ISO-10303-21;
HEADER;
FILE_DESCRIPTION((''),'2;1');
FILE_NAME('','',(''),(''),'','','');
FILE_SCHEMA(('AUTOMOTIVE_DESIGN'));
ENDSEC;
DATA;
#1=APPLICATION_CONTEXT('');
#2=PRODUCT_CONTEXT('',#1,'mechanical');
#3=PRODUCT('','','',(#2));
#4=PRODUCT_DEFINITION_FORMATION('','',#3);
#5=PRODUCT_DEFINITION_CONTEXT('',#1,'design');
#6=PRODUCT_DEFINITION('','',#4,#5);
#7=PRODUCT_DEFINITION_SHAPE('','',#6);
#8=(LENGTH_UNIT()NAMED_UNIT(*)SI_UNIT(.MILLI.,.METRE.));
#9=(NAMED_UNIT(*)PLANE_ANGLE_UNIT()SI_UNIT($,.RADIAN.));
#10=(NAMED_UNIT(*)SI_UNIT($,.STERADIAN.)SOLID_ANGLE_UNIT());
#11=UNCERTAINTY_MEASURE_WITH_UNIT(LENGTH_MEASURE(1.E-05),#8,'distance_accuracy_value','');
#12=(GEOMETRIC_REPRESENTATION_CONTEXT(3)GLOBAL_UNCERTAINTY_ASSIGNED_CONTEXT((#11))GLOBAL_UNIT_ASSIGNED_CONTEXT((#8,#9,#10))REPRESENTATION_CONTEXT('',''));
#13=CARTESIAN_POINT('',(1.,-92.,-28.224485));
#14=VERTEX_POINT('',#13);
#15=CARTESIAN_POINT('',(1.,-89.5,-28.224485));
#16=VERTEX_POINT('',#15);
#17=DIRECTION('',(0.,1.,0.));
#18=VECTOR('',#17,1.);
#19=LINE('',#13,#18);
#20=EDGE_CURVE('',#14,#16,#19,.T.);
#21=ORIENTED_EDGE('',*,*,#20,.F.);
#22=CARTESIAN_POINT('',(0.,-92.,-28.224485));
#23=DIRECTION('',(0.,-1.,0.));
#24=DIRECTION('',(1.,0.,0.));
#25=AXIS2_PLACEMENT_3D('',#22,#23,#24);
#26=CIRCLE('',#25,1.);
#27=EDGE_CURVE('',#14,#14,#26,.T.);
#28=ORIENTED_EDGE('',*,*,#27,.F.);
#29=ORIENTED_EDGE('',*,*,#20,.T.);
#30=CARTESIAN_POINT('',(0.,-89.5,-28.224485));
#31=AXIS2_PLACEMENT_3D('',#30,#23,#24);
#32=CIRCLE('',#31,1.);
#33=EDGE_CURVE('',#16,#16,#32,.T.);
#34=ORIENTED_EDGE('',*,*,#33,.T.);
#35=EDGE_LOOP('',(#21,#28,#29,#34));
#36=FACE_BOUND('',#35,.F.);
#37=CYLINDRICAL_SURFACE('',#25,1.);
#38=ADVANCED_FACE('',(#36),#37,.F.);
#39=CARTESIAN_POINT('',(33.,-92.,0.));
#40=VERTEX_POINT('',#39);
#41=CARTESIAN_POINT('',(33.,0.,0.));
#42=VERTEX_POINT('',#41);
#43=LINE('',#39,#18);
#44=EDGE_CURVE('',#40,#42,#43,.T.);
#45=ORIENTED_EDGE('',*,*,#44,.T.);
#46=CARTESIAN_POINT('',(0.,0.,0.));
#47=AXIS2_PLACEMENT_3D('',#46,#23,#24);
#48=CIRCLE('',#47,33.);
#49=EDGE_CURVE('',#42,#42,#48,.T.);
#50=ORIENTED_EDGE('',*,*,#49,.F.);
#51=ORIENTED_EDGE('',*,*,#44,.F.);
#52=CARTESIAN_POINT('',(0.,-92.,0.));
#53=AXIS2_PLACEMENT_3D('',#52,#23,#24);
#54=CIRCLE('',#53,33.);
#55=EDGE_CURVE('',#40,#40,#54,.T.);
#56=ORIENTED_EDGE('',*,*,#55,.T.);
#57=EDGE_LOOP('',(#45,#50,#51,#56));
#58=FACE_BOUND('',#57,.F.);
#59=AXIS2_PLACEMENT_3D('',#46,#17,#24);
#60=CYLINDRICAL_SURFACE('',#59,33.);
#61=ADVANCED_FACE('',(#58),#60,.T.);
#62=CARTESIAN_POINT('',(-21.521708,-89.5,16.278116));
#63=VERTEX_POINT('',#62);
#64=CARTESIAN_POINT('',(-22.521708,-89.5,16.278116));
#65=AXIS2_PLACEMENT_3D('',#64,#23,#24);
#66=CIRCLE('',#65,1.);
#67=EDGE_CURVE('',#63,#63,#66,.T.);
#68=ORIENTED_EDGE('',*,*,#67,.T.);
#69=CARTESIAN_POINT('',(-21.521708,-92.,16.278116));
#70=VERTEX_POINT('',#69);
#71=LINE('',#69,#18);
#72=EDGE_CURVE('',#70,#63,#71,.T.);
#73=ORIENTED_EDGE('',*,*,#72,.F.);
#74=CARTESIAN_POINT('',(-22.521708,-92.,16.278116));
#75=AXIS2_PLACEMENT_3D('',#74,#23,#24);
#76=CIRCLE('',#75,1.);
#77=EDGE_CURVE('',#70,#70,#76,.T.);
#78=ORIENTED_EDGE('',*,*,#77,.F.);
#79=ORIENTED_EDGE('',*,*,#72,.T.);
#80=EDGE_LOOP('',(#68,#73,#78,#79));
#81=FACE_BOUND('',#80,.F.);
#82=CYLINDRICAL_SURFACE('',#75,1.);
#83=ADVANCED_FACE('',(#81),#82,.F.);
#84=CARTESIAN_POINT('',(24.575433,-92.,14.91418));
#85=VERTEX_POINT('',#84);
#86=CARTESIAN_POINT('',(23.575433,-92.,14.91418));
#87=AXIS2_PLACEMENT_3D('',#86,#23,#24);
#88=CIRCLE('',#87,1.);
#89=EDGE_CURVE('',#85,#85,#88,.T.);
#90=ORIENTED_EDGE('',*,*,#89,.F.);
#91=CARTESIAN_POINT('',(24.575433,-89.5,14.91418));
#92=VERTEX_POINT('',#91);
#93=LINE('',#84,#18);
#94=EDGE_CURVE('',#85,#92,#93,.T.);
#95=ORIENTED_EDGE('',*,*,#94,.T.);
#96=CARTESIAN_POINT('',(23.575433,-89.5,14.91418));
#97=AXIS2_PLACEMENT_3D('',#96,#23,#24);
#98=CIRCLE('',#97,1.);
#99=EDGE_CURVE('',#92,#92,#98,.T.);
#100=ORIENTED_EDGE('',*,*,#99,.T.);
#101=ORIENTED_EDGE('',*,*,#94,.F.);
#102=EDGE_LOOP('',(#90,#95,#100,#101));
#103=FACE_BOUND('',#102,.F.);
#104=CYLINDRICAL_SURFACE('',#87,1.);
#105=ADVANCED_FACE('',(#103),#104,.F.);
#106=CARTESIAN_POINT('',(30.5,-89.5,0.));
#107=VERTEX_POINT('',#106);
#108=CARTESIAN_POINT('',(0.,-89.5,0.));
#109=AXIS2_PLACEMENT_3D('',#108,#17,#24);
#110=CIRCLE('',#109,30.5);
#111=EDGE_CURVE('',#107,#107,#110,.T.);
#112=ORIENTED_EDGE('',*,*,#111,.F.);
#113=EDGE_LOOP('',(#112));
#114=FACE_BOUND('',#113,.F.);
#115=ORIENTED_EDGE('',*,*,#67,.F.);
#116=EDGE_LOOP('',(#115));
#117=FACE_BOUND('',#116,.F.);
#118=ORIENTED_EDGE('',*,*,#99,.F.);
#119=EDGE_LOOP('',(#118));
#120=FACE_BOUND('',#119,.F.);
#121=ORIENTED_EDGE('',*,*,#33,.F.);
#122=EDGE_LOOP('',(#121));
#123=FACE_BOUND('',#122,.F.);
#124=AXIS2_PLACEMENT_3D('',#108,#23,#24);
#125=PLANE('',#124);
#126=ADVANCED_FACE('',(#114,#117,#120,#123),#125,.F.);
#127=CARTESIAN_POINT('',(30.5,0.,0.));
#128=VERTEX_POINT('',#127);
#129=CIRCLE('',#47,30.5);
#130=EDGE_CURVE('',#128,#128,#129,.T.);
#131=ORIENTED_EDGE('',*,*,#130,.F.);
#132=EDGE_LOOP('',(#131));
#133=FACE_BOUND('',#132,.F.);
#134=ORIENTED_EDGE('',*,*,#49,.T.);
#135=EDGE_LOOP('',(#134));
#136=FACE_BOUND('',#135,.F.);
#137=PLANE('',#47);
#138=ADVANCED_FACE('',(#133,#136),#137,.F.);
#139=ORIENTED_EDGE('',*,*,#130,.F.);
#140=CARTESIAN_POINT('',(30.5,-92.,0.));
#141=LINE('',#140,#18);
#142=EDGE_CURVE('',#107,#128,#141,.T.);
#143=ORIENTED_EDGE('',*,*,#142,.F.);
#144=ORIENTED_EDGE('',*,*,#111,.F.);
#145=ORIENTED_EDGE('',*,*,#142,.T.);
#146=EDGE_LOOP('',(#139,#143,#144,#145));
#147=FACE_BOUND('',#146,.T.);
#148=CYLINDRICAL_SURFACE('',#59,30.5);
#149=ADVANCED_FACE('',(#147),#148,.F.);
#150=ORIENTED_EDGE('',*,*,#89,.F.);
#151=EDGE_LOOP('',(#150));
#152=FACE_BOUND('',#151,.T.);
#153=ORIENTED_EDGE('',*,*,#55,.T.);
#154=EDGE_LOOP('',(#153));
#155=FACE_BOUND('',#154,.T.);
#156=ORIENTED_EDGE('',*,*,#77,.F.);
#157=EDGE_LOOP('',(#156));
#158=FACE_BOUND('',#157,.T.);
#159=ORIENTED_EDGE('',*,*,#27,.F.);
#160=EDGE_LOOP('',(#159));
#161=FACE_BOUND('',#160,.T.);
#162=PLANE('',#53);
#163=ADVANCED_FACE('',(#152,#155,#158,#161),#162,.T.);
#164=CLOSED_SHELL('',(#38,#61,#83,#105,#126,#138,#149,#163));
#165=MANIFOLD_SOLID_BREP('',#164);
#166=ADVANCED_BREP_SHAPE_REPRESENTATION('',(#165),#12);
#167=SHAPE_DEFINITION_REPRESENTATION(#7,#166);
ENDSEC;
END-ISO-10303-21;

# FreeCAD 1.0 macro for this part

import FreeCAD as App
import Part
import Sketcher
from FreeCAD import Vector
Q = App.Units.Quantity


def faces_at(feature, points):
    """Names of the faces that lie closest to the given points."""
    faces = feature.Shape.Faces
    near = lambda p: min(range(len(faces)), key=lambda i: faces[i].distToShape(Part.Vertex(*p))[0])
    return sorted({f"Face{near(p) + 1}" for p in points})

doc = App.newDocument("Part")
body = doc.addObject("PartDesign::Body", "Body")

sketch1 = doc.addObject("Sketcher::SketchObject", "Sketch")
body.addObject(sketch1)
sketch1.AttachmentSupport = (doc.XZ_Plane, [""])
sketch1.MapMode = "FlatFace"
sketch1.addGeometry(Part.Circle(Vector(0, 0, 0), Vector(0, 0, 1), 33), False)
sketch1.addConstraint([
    Sketcher.Constraint("Coincident", 0, 3, -1, 1),
    Sketcher.Constraint("Diameter", 0, Q("66 mm")),
])
pad1 = doc.addObject("PartDesign::Pad", "Pad")
body.addObject(pad1)
pad1.Profile = sketch1
pad1.Length = 92

sketch2 = doc.addObject("Sketcher::SketchObject", "Sketch001")
body.addObject(sketch2)
sketch2.AttachmentSupport = (doc.XZ_Plane, [""])
sketch2.MapMode = "FlatFace"
sketch2.addGeometry([
    Part.Circle(Vector(0, 0, 0), Vector(0, 0, 1), 33),
    Part.Circle(Vector(0, 0, 0), Vector(0, 0, 1), 30),
], False)
sketch2.addConstraint([
    Sketcher.Constraint("Coincident", 0, 3, -1, 1),
    Sketcher.Constraint("Coincident", 1, 3, -1, 1),
    Sketcher.Constraint("Diameter", 0, Q("66 mm")),
    Sketcher.Constraint("Diameter", 1, Q("60 mm")),
])
pad2 = doc.addObject("PartDesign::Pad", "Pad001")
body.addObject(pad2)
pad2.Profile = sketch2
pad2.Length = 3
doc.recompute()

thickness = doc.addObject("PartDesign::Thickness", "Thickness")
body.addObject(thickness)
thickness.Base = (pad2, faces_at(pad2, [(0, 0, 0)]))
thickness.Value = 2.5
thickness.Reversed = True
thickness.Join = "Arc"

sketch3 = doc.addObject("Sketcher::SketchObject", "Sketch002")
body.addObject(sketch3)
sketch3.AttachmentSupport = (doc.XZ_Plane, [""])
sketch3.MapMode = "FlatFace"
sketch3.AttachmentOffset = App.Placement(Vector(0, 0, 92), App.Rotation())
sketch3.addGeometry([
    Part.Circle(Vector(0, -28.224485, 0), Vector(0, 0, 1), 1),
    Part.Circle(Vector(23.575433, 14.91418, 0), Vector(0, 0, 1), 1),
    Part.Circle(Vector(-22.521708, 16.278116, 0), Vector(0, 0, 1), 1),
], False)
sketch3.addConstraint([
    Sketcher.Constraint("Equal", 0, 1),
    Sketcher.Constraint("Equal", 1, 2),
    Sketcher.Constraint("PointOnObject", 0, 3, -2),
    Sketcher.Constraint("Diameter", 0, Q("2 mm")),
    Sketcher.Constraint("DistanceY", 0, 3, 2, 3, Q("44.502601 mm")),
    Sketcher.Constraint("DistanceY", -1, 1, 1, 3, Q("14.91418 mm")),
    Sketcher.Constraint("DistanceX", 2, 3, 1, 3, Q("46.09714 mm")),
    Sketcher.Constraint("DistanceY", 0, 3, -1, 1, Q("28.224485 mm")),
    Sketcher.Constraint("DistanceX", -1, 1, 1, 3, Q("23.575433 mm")),
])
pocket1 = doc.addObject("PartDesign::Pocket", "Pocket")
body.addObject(pocket1)
pocket1.Profile = sketch3
pocket1.Length = 6

doc.recompute()
